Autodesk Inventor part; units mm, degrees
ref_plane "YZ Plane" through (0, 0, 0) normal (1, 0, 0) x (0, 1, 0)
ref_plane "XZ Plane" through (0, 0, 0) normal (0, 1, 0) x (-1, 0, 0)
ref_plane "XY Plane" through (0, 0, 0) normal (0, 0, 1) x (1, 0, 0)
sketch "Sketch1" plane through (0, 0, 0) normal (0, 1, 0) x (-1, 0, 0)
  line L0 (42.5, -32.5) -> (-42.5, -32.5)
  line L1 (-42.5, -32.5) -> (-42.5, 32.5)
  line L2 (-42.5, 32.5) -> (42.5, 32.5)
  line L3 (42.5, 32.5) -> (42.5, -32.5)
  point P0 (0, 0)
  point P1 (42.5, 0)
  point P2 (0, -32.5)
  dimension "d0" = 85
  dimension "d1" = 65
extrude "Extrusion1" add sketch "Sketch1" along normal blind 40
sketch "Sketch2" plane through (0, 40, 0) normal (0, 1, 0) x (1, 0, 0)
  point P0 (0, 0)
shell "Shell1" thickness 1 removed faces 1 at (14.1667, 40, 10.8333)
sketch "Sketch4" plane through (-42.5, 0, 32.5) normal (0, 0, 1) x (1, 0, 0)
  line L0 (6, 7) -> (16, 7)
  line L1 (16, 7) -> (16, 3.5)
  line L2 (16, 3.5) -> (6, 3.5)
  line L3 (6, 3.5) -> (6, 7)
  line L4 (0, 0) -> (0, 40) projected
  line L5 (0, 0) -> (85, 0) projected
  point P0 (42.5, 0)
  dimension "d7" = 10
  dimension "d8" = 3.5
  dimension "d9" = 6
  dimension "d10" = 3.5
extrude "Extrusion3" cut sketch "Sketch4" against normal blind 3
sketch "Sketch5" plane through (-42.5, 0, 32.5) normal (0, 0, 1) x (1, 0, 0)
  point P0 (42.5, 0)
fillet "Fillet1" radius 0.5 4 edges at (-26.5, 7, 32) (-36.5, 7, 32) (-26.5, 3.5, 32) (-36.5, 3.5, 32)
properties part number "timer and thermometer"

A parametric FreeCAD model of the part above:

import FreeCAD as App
import Part
import Sketcher

V = App.Vector
Q = App.Units.Quantity


def edges_at(feature, points):
    """Names of the edges that pass closest to the given points."""
    edges = feature.Shape.Edges
    near = lambda p: min(range(len(edges)), key=lambda i: edges[i].distToShape(Part.Vertex(*p))[0])
    return sorted({f"Edge{near(p) + 1}" for p in points})


def faces_at(feature, points):
    """Names of the faces that lie closest to the given points."""
    faces = feature.Shape.Faces
    near = lambda p: min(range(len(faces)), key=lambda i: faces[i].distToShape(Part.Vertex(*p))[0])
    return sorted({f"Face{near(p) + 1}" for p in points})


def add_polygon(sketch, points):
    """Adds a closed chain of lines whose ends are joined by coincident constraints."""
    first, n = sketch.GeometryCount, len(points)
    for a, b in zip(points, points[1:] + points[:1]):
        sketch.addGeometry(Part.LineSegment(App.Vector(*a, 0), App.Vector(*b, 0)), False)
    for i in range(n):
        sketch.addConstraint(Sketcher.Constraint("Coincident", first + i, 2, first + (i + 1) % n, 1))

doc = App.newDocument("Part")
body = doc.addObject("PartDesign::Body", "Body")

sketch1 = doc.addObject("Sketcher::SketchObject", "Sketch")
body.addObject(sketch1)
sketch1.AttachmentSupport = (doc.XZ_Plane, [""])
sketch1.MapMode = "FlatFace"
add_polygon(sketch1, [(42.5, -32.5), (-42.5, -32.5), (-42.5, 32.5), (42.5, 32.5)])
sketch1.addConstraint(Sketcher.Constraint("Horizontal", 0))
sketch1.addConstraint(Sketcher.Constraint("Vertical", 1))
sketch1.addConstraint(Sketcher.Constraint("Horizontal", 2))
sketch1.addConstraint(Sketcher.Constraint("Vertical", 3))
sketch1.addConstraint(Sketcher.Constraint("Symmetric", 0, 2, 2, 2, -1, 1))
sketch1.addConstraint(Sketcher.Constraint("DistanceX", 0, 2, 0, 1, Q("85 mm")))
sketch1.addConstraint(Sketcher.Constraint("DistanceY", 1, 1, 1, 2, Q("65 mm")))
pad1 = doc.addObject("PartDesign::Pad", "Pad")
body.addObject(pad1)
pad1.Profile = sketch1
pad1.Length = 40
pad1.Reversed = True
doc.recompute()

thickness = doc.addObject("PartDesign::Thickness", "Thickness")
body.addObject(thickness)
thickness.Base = (pad1, faces_at(pad1, [(14.167, 40, 10.833)]))
thickness.Value = 1
thickness.Reversed = True
thickness.Join = "Intersection"

sketch2 = doc.addObject("Sketcher::SketchObject", "Sketch001")
body.addObject(sketch2)
sketch2.AttachmentSupport = (doc.XY_Plane, [""])
sketch2.MapMode = "FlatFace"
sketch2.AttachmentOffset = App.Placement(V(0, 0, 32.5), App.Rotation())
add_polygon(sketch2, [(-26.5, 7), (-36.5, 7), (-36.5, 3.5), (-26.5, 3.5)])
sketch2.addConstraint(Sketcher.Constraint("Horizontal", 0))
sketch2.addConstraint(Sketcher.Constraint("Vertical", 1))
sketch2.addConstraint(Sketcher.Constraint("Horizontal", 2))
sketch2.addConstraint(Sketcher.Constraint("Vertical", 3))
sketch2.addConstraint(Sketcher.Constraint("DistanceX", 0, 2, 0, 1, Q("10 mm")))
sketch2.addConstraint(Sketcher.Constraint("DistanceY", 1, 2, 1, 1, Q("3.5 mm")))
sketch2.addConstraint(Sketcher.Constraint("DistanceY", -1, 1, 1, 2, Q("3.5 mm")))
sketch2.addConstraint(Sketcher.Constraint("DistanceX", 0, 2, -1, 1, Q("36.5 mm")))
pocket1 = doc.addObject("PartDesign::Pocket", "Pocket")
body.addObject(pocket1)
pocket1.Profile = sketch2
pocket1.Length = 3
doc.recompute()

fillet = doc.addObject("PartDesign::Fillet", "Fillet")
body.addObject(fillet)
fillet.Base = (pocket1, edges_at(pocket1, [
    (-26.5, 7, 32),
    (-36.5, 7, 32),
    (-26.5, 3.5, 32),
    (-36.5, 3.5, 32),
]))
fillet.Radius = 0.5

doc.recompute()
